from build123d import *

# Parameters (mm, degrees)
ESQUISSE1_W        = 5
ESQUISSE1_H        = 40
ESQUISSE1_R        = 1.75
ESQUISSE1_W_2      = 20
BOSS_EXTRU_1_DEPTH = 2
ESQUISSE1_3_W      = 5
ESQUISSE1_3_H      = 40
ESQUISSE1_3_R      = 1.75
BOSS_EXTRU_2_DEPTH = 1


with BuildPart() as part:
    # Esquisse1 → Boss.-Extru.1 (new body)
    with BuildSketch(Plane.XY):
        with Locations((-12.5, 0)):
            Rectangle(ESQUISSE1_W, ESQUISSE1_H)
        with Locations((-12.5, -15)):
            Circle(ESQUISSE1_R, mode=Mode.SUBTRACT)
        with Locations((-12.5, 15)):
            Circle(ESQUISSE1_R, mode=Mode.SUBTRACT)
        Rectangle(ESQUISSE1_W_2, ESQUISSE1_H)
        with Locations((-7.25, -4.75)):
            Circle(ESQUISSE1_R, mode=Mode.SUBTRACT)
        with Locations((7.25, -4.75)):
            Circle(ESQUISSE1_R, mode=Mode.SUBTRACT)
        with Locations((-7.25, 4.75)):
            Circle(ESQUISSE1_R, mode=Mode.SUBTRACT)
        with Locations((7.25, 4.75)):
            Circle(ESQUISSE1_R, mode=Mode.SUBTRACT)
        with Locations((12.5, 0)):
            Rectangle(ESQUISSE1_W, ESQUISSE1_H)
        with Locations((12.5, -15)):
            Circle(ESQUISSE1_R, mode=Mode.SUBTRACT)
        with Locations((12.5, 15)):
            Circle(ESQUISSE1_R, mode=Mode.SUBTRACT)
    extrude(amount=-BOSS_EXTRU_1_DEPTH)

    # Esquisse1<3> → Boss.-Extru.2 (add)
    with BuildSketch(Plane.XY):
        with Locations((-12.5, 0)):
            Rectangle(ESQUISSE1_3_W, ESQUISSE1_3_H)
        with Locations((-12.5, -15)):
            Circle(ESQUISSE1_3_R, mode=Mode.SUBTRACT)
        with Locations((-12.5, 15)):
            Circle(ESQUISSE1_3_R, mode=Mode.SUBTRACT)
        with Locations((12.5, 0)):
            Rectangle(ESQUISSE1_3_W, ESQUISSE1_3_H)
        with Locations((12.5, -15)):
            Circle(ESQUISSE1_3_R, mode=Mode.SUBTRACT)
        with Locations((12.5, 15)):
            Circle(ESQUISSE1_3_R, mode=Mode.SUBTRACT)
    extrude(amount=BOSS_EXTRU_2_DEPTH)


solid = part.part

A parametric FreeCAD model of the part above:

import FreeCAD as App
import Part
import Sketcher
from FreeCAD import Vector
Q = App.Units.Quantity


def add_polygon(sketch, points):
    """Adds a closed chain of lines whose ends are joined by coincident constraints."""
    first, n = sketch.GeometryCount, len(points)
    for a, b in zip(points, points[1:] + points[:1]):
        sketch.addGeometry(Part.LineSegment(App.Vector(*a, 0), App.Vector(*b, 0)), False)
    for i in range(n):
        sketch.addConstraint(Sketcher.Constraint("Coincident", first + i, 2, first + (i + 1) % n, 1))

doc = App.newDocument("Part")
body = doc.addObject("PartDesign::Body", "Body")

# Sketch on XY plane
sketch1 = body.newObject("Sketcher::SketchObject", "Sketch")
sketch1.AttachmentSupport = (doc.getObject("XY_Plane"), [""])
sketch1.MapMode = "FlatFace"
add_polygon(sketch1, [(-15, 20), (-15, -20), (15, -20), (15, 20)])  # lines 0-3
sketch1.addGeometry(Part.Circle(Vector(-12.5, -15, 0), Vector(0, 0, 1), 1.8), False)  # 4
sketch1.addGeometry(Part.Circle(Vector(-7.2, -4.8, 0), Vector(0, 0, 1), 1.8), False)  # 5
sketch1.addGeometry(Part.Circle(Vector(12.5, -15, 0), Vector(0, 0, 1), 1.8), False)  # 6
sketch1.addGeometry(Part.Circle(Vector(7.2, -4.8, 0), Vector(0, 0, 1), 1.8), False)  # 7
sketch1.addGeometry(Part.Circle(Vector(-7.2, 4.8, 0), Vector(0, 0, 1), 1.8), False)  # 8
sketch1.addGeometry(Part.Circle(Vector(-12.5, 15, 0), Vector(0, 0, 1), 1.8), False)  # 9
sketch1.addGeometry(Part.Circle(Vector(7.2, 4.8, 0), Vector(0, 0, 1), 1.8), False)  # 10
sketch1.addGeometry(Part.Circle(Vector(12.5, 15, 0), Vector(0, 0, 1), 1.8), False)  # 11
sketch1.addConstraint(Sketcher.Constraint("Vertical", 0))
sketch1.addConstraint(Sketcher.Constraint("Horizontal", 1))
sketch1.addConstraint(Sketcher.Constraint("Vertical", 2))
sketch1.addConstraint(Sketcher.Constraint("Horizontal", 3))
sketch1.addConstraint(Sketcher.Constraint("Equal", 4, 5))
sketch1.addConstraint(Sketcher.Constraint("Equal", 5, 6))
sketch1.addConstraint(Sketcher.Constraint("Equal", 6, 7))
sketch1.addConstraint(Sketcher.Constraint("Equal", 7, 8))
sketch1.addConstraint(Sketcher.Constraint("Equal", 8, 9))
sketch1.addConstraint(Sketcher.Constraint("Equal", 9, 10))
sketch1.addConstraint(Sketcher.Constraint("Equal", 10, 11))
sketch1.addConstraint(Sketcher.Constraint("Symmetric", 7, 3, 8, 3, -1, 1))
sketch1.addConstraint(Sketcher.Constraint("Symmetric", 6, 3, 9, 3, -1, 1))
sketch1.addConstraint(Sketcher.Constraint("Symmetric", 5, 3, 10, 3, -1, 1))
sketch1.addConstraint(Sketcher.Constraint("Symmetric", 4, 3, 11, 3, -1, 1))
sketch1.addConstraint(Sketcher.Constraint("Symmetric", 0, 2, 2, 2, -1, 1))
sketch1.addConstraint(Sketcher.Constraint("Symmetric", 4, 3, 6, 3, -2))
sketch1.addConstraint(Sketcher.Constraint("Symmetric", 5, 3, 7, 3, -2))
sketch1.addConstraint(Sketcher.Constraint("Diameter", 4, Q("3.5 mm")))
sketch1.addConstraint(Sketcher.Constraint("DistanceX", 1, 1, 1, 2, Q("30 mm")))
sketch1.addConstraint(Sketcher.Constraint("DistanceY", 0, 2, 0, 1, Q("40 mm")))
sketch1.addConstraint(Sketcher.Constraint("DistanceY", 4, 3, -1, 1, Q("15 mm")))
sketch1.addConstraint(Sketcher.Constraint("DistanceX", 4, 3, 6, 3, Q("25 mm")))
sketch1.addConstraint(Sketcher.Constraint("DistanceX", 5, 3, 7, 3, Q("14.5 mm")))
sketch1.addConstraint(Sketcher.Constraint("DistanceY", 5, 3, 8, 3, Q("9.5 mm")))
pad1 = body.newObject("PartDesign::Pad", "Pad")
pad1.Profile = sketch1
pad1.Length = 2
pad1.Reversed = True

# Sketch on XY plane
sketch2 = body.newObject("Sketcher::SketchObject", "Sketch001")
sketch2.AttachmentSupport = (doc.getObject("XY_Plane"), [""])
sketch2.MapMode = "FlatFace"
add_polygon(sketch2, [(-15, 20), (-15, -20), (-10, -20), (-10, 20)])  # lines 0-3
sketch2.addGeometry(Part.Circle(Vector(-12.5, -15, 0), Vector(0, 0, 1), 1.8), False)  # 4
sketch2.addGeometry(Part.Circle(Vector(-12.5, 15, 0), Vector(0, 0, 1), 1.8), False)  # 5
add_polygon(sketch2, [(10, 20), (10, -20), (15, -20), (15, 20)])  # lines 6-9
sketch2.addGeometry(Part.Circle(Vector(12.5, -15, 0), Vector(0, 0, 1), 1.8), False)  # 10
sketch2.addGeometry(Part.Circle(Vector(12.5, 15, 0), Vector(0, 0, 1), 1.8), False)  # 11
sketch2.addConstraint(Sketcher.Constraint("Vertical", 0))
sketch2.addConstraint(Sketcher.Constraint("Horizontal", 1))
sketch2.addConstraint(Sketcher.Constraint("Vertical", 2))
sketch2.addConstraint(Sketcher.Constraint("Horizontal", 3))
sketch2.addConstraint(Sketcher.Constraint("Vertical", 6))
sketch2.addConstraint(Sketcher.Constraint("Horizontal", 7))
sketch2.addConstraint(Sketcher.Constraint("Vertical", 8))
sketch2.addConstraint(Sketcher.Constraint("Horizontal", 9))
sketch2.addConstraint(Sketcher.Constraint("Equal", 4, 5))
sketch2.addConstraint(Sketcher.Constraint("Equal", 5, 10))
sketch2.addConstraint(Sketcher.Constraint("Equal", 10, 11))
sketch2.addConstraint(Sketcher.Constraint("Symmetric", 5, 3, 10, 3, -1, 1))
sketch2.addConstraint(Sketcher.Constraint("Symmetric", 4, 3, 11, 3, -1, 1))
sketch2.addConstraint(Sketcher.Constraint("Symmetric", 2, 2, 6, 2, -1, 1))
sketch2.addConstraint(Sketcher.Constraint("Symmetric", 0, 2, 8, 2, -1, 1))
sketch2.addConstraint(Sketcher.Constraint("Symmetric", 4, 3, 10, 3, -2))
sketch2.addConstraint(Sketcher.Constraint("Horizontal", 1, 2, 6, 2))
sketch2.addConstraint(Sketcher.Constraint("Diameter", 4, Q("3.5 mm")))
sketch2.addConstraint(Sketcher.Constraint("DistanceX", 1, 1, 1, 2, Q("5 mm")))
sketch2.addConstraint(Sketcher.Constraint("DistanceY", 0, 2, 0, 1, Q("40 mm")))
sketch2.addConstraint(Sketcher.Constraint("DistanceY", 4, 3, -1, 1, Q("15 mm")))
sketch2.addConstraint(Sketcher.Constraint("DistanceX", 0, 2, -1, 1, Q("15 mm")))
sketch2.addConstraint(Sketcher.Constraint("DistanceX", 4, 3, 10, 3, Q("25 mm")))
pad2 = body.newObject("PartDesign::Pad", "Pad001")
pad2.Profile = sketch2
pad2.Length = 1

doc.recompute()
